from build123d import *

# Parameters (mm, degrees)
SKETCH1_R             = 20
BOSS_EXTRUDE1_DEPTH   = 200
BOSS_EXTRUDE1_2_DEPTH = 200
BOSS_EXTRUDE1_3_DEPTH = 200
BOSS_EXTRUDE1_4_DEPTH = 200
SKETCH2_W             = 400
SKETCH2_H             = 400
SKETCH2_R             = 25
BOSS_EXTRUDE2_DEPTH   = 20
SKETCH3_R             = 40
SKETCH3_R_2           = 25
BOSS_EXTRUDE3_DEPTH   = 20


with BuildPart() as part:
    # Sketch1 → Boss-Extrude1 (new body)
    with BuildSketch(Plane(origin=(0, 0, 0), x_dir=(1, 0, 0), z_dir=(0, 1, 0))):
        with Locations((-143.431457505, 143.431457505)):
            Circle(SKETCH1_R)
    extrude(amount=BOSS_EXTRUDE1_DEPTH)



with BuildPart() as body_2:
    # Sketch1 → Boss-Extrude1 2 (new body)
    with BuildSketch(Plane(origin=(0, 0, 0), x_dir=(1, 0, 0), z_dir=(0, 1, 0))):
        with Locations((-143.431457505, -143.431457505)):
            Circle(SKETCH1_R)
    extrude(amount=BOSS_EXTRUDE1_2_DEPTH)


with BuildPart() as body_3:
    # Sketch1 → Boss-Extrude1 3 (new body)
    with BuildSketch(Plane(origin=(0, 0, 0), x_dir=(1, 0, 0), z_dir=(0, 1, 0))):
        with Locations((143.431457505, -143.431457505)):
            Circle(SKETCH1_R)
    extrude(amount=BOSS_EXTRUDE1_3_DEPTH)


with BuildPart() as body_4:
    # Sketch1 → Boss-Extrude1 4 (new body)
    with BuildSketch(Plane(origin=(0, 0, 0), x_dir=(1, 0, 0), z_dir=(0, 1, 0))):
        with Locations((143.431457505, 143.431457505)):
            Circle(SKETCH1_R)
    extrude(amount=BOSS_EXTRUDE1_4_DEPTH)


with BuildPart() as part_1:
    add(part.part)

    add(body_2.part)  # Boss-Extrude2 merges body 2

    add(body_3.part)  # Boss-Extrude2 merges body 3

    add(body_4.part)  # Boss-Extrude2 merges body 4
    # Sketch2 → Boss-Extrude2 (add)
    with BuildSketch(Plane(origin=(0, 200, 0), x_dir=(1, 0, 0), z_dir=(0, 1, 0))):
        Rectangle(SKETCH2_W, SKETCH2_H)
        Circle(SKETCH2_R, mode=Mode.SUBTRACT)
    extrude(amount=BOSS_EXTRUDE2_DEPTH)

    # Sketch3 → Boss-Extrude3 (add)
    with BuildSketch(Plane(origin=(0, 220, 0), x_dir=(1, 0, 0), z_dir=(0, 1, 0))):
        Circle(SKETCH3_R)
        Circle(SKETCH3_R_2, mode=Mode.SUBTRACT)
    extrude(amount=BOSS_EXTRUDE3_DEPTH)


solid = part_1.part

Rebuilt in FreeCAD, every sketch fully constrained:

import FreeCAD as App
import Part
import Sketcher
from FreeCAD import Vector
Q = App.Units.Quantity


def add_polygon(sketch, points):
    """Adds a closed chain of lines whose ends are joined by coincident constraints."""
    first, n = sketch.GeometryCount, len(points)
    for a, b in zip(points, points[1:] + points[:1]):
        sketch.addGeometry(Part.LineSegment(App.Vector(*a, 0), App.Vector(*b, 0)), False)
    for i in range(n):
        sketch.addConstraint(Sketcher.Constraint("Coincident", first + i, 2, first + (i + 1) % n, 1))

doc = App.newDocument("Part")
body = doc.addObject("PartDesign::Body", "Body")

# Sketch on XZ plane
sketch1 = body.newObject("Sketcher::SketchObject", "Sketch")
sketch1.AttachmentSupport = (doc.getObject("XZ_Plane"), [""])
sketch1.MapMode = "FlatFace"
sketch1.addGeometry(Part.Circle(Vector(-143, -143, 0), Vector(0, 0, 1), 20), False)
sketch1.addConstraint(Sketcher.Constraint("Diameter", 0, Q("40 mm")))
sketch1.addConstraint(Sketcher.Constraint("DistanceX", 0, 3, -1, 1, Q("143.431458 mm")))
sketch1.addConstraint(Sketcher.Constraint("DistanceY", 0, 3, -1, 1, Q("143.431458 mm")))
pad1 = body.newObject("PartDesign::Pad", "Pad")
pad1.Profile = sketch1
pad1.Length = 200
pad1.Reversed = True
body2 = doc.addObject("PartDesign::Body", "Body001")

# Sketch on XZ plane
sketch2 = body2.newObject("Sketcher::SketchObject", "Sketch001")
sketch2.AttachmentSupport = (doc.getObject("XZ_Plane001"), [""])
sketch2.MapMode = "FlatFace"
sketch2.addGeometry(Part.Circle(Vector(-143, 143, 0), Vector(0, 0, 1), 20), False)
sketch2.addConstraint(Sketcher.Constraint("Diameter", 0, Q("40 mm")))
sketch2.addConstraint(Sketcher.Constraint("DistanceX", 0, 3, -1, 1, Q("143.431458 mm")))
sketch2.addConstraint(Sketcher.Constraint("DistanceY", -1, 1, 0, 3, Q("143.431458 mm")))
pad2 = body2.newObject("PartDesign::Pad", "Pad001")
pad2.Profile = sketch2
pad2.Length = 200
pad2.Reversed = True
body3 = doc.addObject("PartDesign::Body", "Body002")

# Sketch on XZ plane
sketch3 = body3.newObject("Sketcher::SketchObject", "Sketch002")
sketch3.AttachmentSupport = (doc.getObject("XZ_Plane002"), [""])
sketch3.MapMode = "FlatFace"
sketch3.addGeometry(Part.Circle(Vector(143, 143, 0), Vector(0, 0, 1), 20), False)
sketch3.addConstraint(Sketcher.Constraint("Diameter", 0, Q("40 mm")))
sketch3.addConstraint(Sketcher.Constraint("DistanceX", -1, 1, 0, 3, Q("143.431458 mm")))
sketch3.addConstraint(Sketcher.Constraint("DistanceY", -1, 1, 0, 3, Q("143.431458 mm")))
pad3 = body3.newObject("PartDesign::Pad", "Pad002")
pad3.Profile = sketch3
pad3.Length = 200
pad3.Reversed = True
body4 = doc.addObject("PartDesign::Body", "Body003")

# Sketch on XZ plane
sketch4 = body4.newObject("Sketcher::SketchObject", "Sketch003")
sketch4.AttachmentSupport = (doc.getObject("XZ_Plane003"), [""])
sketch4.MapMode = "FlatFace"
sketch4.addGeometry(Part.Circle(Vector(143, -143, 0), Vector(0, 0, 1), 20), False)
sketch4.addConstraint(Sketcher.Constraint("Diameter", 0, Q("40 mm")))
sketch4.addConstraint(Sketcher.Constraint("DistanceX", -1, 1, 0, 3, Q("143.431458 mm")))
sketch4.addConstraint(Sketcher.Constraint("DistanceY", 0, 3, -1, 1, Q("143.431458 mm")))
pad4 = body4.newObject("PartDesign::Pad", "Pad003")
pad4.Profile = sketch4
pad4.Length = 200
pad4.Reversed = True
body.AllowCompound = True
doc.recompute()

boolean = body.newObject("PartDesign::Boolean", "Boolean")
boolean.Type = "Fuse"
boolean.addObjects([body2])
doc.recompute()

boolean2 = body.newObject("PartDesign::Boolean", "Boolean001")
boolean2.Type = "Fuse"
boolean2.addObjects([body3])
doc.recompute()

boolean3 = body.newObject("PartDesign::Boolean", "Boolean002")
boolean3.Type = "Fuse"
boolean3.addObjects([body4])

# Sketch on XZ plane
sketch5 = body.newObject("Sketcher::SketchObject", "Sketch004")
sketch5.AttachmentSupport = (doc.getObject("XZ_Plane"), [""])
sketch5.MapMode = "FlatFace"
sketch5.AttachmentOffset = App.Placement(Vector(0, 0, -200), App.Rotation())
add_polygon(sketch5, [(-200, -200), (-200, 200), (200, 200), (200, -200)])  # lines 0-3
sketch5.addGeometry(Part.Circle(Vector(0, 0, 0), Vector(0, 0, 1), 25), False)  # 4
sketch5.addConstraint(Sketcher.Constraint("Vertical", 0))
sketch5.addConstraint(Sketcher.Constraint("Horizontal", 1))
sketch5.addConstraint(Sketcher.Constraint("Vertical", 2))
sketch5.addConstraint(Sketcher.Constraint("Horizontal", 3))
sketch5.addConstraint(Sketcher.Constraint("Coincident", 4, 3, -1, 1))
sketch5.addConstraint(Sketcher.Constraint("Symmetric", 0, 2, 2, 2, -1, 1))
sketch5.addConstraint(Sketcher.Constraint("Equal", 3, 0))
sketch5.addConstraint(Sketcher.Constraint("Diameter", 4, Q("50 mm")))
sketch5.addConstraint(Sketcher.Constraint("DistanceX", 1, 1, 1, 2, Q("400 mm")))
pad5 = body.newObject("PartDesign::Pad", "Pad004")
pad5.Profile = sketch5
pad5.Length = 20
pad5.Reversed = True

# Sketch on XZ plane
sketch6 = body.newObject("Sketcher::SketchObject", "Sketch005")
sketch6.AttachmentSupport = (doc.getObject("XZ_Plane"), [""])
sketch6.MapMode = "FlatFace"
sketch6.AttachmentOffset = App.Placement(Vector(0, 0, -220), App.Rotation())
sketch6.addGeometry(Part.Circle(Vector(0, 0, 0), Vector(0, 0, 1), 40), False)
sketch6.addGeometry(Part.Circle(Vector(0, 0, 0), Vector(0, 0, 1), 25), False)
sketch6.addConstraint(Sketcher.Constraint("Coincident", 0, 3, -1, 1))
sketch6.addConstraint(Sketcher.Constraint("Coincident", 1, 3, -1, 1))
sketch6.addConstraint(Sketcher.Constraint("Diameter", 0, Q("80 mm")))
sketch6.addConstraint(Sketcher.Constraint("Diameter", 1, Q("50 mm")))
pad6 = body.newObject("PartDesign::Pad", "Pad005")
pad6.Profile = sketch6
pad6.Length = 20
pad6.Reversed = True

doc.recompute()
